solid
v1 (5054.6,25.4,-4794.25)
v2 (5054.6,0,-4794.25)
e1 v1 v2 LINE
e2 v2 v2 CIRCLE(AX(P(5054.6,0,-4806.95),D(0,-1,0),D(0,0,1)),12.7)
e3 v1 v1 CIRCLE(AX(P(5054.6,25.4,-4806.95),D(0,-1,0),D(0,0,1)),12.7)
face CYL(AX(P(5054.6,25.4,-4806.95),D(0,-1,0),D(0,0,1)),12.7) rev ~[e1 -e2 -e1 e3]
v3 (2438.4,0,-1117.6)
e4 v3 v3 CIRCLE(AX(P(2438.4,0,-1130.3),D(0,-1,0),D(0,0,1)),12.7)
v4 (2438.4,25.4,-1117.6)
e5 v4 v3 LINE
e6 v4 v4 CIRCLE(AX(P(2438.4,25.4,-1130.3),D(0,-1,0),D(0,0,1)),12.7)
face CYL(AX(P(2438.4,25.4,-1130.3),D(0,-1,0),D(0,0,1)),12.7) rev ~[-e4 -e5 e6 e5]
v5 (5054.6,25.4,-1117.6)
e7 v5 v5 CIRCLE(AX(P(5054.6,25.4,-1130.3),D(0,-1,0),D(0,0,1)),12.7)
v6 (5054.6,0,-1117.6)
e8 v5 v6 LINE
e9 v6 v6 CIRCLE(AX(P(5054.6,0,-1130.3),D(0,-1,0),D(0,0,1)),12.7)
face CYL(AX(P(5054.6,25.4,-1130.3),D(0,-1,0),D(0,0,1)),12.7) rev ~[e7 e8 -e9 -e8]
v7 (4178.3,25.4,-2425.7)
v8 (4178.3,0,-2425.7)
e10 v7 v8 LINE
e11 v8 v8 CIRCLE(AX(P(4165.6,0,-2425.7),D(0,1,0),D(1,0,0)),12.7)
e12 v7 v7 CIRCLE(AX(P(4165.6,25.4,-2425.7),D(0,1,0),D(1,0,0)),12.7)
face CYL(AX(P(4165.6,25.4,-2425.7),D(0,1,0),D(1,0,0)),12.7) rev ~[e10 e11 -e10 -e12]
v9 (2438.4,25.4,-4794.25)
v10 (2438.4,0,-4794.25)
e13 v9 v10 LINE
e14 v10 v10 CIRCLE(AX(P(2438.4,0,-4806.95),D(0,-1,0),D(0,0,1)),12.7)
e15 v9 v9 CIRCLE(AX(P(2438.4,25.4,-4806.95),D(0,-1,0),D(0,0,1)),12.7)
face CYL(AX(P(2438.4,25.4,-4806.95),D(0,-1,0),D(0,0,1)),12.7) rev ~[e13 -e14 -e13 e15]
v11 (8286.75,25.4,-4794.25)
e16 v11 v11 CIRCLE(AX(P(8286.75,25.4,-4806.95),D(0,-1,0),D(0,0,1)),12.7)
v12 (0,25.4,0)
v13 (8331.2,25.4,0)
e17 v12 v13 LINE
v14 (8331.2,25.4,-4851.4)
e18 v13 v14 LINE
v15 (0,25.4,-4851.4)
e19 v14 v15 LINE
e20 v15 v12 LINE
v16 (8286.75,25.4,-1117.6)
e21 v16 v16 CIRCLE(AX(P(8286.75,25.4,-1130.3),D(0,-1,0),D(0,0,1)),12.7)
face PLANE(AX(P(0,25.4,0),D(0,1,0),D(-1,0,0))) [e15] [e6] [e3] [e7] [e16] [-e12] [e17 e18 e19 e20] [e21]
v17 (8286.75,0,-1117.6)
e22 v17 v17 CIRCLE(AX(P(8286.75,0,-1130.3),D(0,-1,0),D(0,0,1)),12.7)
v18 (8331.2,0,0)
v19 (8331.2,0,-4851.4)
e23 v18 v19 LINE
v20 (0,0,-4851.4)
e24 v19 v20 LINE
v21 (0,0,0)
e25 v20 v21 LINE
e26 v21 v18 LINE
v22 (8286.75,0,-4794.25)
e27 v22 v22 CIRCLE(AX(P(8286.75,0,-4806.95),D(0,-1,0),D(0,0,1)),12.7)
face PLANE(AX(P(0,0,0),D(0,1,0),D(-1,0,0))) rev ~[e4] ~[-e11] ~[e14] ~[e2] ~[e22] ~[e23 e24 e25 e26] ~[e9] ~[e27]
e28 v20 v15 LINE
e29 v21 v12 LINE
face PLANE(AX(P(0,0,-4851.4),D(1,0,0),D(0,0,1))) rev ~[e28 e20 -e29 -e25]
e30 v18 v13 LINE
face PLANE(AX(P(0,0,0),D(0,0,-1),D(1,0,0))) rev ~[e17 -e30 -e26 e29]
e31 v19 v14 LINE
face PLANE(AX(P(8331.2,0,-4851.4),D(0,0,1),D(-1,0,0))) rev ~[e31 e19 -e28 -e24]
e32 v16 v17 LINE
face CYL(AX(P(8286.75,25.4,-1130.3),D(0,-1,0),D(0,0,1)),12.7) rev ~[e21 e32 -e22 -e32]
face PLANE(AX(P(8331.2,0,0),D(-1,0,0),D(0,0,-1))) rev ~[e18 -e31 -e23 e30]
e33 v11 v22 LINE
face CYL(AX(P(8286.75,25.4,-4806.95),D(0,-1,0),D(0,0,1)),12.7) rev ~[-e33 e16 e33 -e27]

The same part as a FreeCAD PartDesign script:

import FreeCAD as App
import Part
import Sketcher
Q = App.Units.Quantity


def add_polygon(sketch, points):
    """Adds a closed chain of lines whose ends are joined by coincident constraints."""
    first, n = sketch.GeometryCount, len(points)
    for a, b in zip(points, points[1:] + points[:1]):
        sketch.addGeometry(Part.LineSegment(App.Vector(*a, 0), App.Vector(*b, 0)), False)
    for i in range(n):
        sketch.addConstraint(Sketcher.Constraint("Coincident", first + i, 2, first + (i + 1) % n, 1))

doc = App.newDocument("Part")
params = doc.addObject("Spreadsheet::Sheet", "Params")
for row, (alias, value) in enumerate([
    ("sketch1_width", "328 in"),
    ("sketch1_height", "191 in"),
    ("pad1_length", "1 in"),
    ("sketch2_diameter", "1 in"),
    ("hole_diameter", "1 in"),
    ("hole_depth", "1 in"),
    ("sketch3_diameter", "1 in"),
    ("pocket1_length", "43 in"),
], start=1):
    params.set(f"A{row}", alias)
    params.set(f"B{row}", "=" + value)
    params.setAlias(f"B{row}", alias)

body = doc.addObject("PartDesign::Body", "Body")

# Sketch on XZ plane
sketch1 = body.newObject("Sketcher::SketchObject", "Sketch")
sketch1.AttachmentSupport = (doc.getObject("XZ_Plane"), [""])
sketch1.MapMode = "FlatFace"
add_polygon(sketch1, [(0, -4851), (0, 0), (8331, 0), (8331, -4851)])  # lines 0-3
sketch1.addConstraint(Sketcher.Constraint("Vertical", 0))
sketch1.addConstraint(Sketcher.Constraint("Horizontal", 1))
sketch1.addConstraint(Sketcher.Constraint("Vertical", 2))
sketch1.addConstraint(Sketcher.Constraint("Horizontal", 3))
sketch1.addConstraint(Sketcher.Constraint("Coincident", 0, 2, -1, 1))
sketch1.addConstraint(Sketcher.Constraint("DistanceX", 1, 1, 1, 2, Q("328 in")))
sketch1.addConstraint(Sketcher.Constraint("DistanceY", 0, 1, 0, 2, Q("191 in")))
sketch1.setExpression("Constraints[9]", "Params.sketch1_width")
sketch1.setExpression("Constraints[10]", "Params.sketch1_height")
pad1 = body.newObject("PartDesign::Pad", "Pad")
pad1.Profile = sketch1
pad1.setExpression("Length", "Params.pad1_length")
pad1.Reversed = True

# Sketch on XZ plane
sketch2 = body.newObject("Sketcher::SketchObject", "Sketch001")
sketch2.AttachmentSupport = (doc.getObject("XZ_Plane"), [""])
sketch2.MapMode = "FlatFace"
sketch2.AttachmentOffset = App.Placement(App.Vector(0, 0, -1 * 25.4), App.Rotation())
sketch2.addGeometry(Part.Circle(App.Vector(8287, -1130, 0), App.Vector(0, 0, 1), 13), False)
sketch2.addGeometry(Part.Circle(App.Vector(8287, -4807, 0), App.Vector(0, 0, 1), 13), False)
sketch2.addGeometry(Part.Circle(App.Vector(5055, -1130, 0), App.Vector(0, 0, 1), 13), False)
sketch2.addGeometry(Part.Circle(App.Vector(5055, -4807, 0), App.Vector(0, 0, 1), 13), False)
sketch2.addGeometry(Part.Circle(App.Vector(2438, -4807, 0), App.Vector(0, 0, 1), 13), False)
sketch2.addGeometry(Part.Circle(App.Vector(2438, -1130, 0), App.Vector(0, 0, 1), 13), False)
sketch2.addConstraint(Sketcher.Constraint("Equal", 0, 1))
sketch2.addConstraint(Sketcher.Constraint("Equal", 1, 2))
sketch2.addConstraint(Sketcher.Constraint("Equal", 2, 3))
sketch2.addConstraint(Sketcher.Constraint("Equal", 3, 4))
sketch2.addConstraint(Sketcher.Constraint("Equal", 4, 5))
sketch2.addConstraint(Sketcher.Constraint("Horizontal", 0, 3, 2, 3))
sketch2.addConstraint(Sketcher.Constraint("Horizontal", 1, 3, 3, 3))
sketch2.addConstraint(Sketcher.Constraint("Horizontal", 3, 3, 4, 3))
sketch2.addConstraint(Sketcher.Constraint("Horizontal", 2, 3, 5, 3))
sketch2.addConstraint(Sketcher.Constraint("Vertical", 0, 3, 1, 3))
sketch2.addConstraint(Sketcher.Constraint("Vertical", 2, 3, 3, 3))
sketch2.addConstraint(Sketcher.Constraint("Vertical", 4, 3, 5, 3))
sketch2.addConstraint(Sketcher.Constraint("Diameter", 0, Q("1 in")))
sketch2.addConstraint(Sketcher.Constraint("DistanceX", -1, 1, 2, 3, Q("199 in")))
sketch2.addConstraint(Sketcher.Constraint("DistanceX", -1, 1, 4, 3, Q("96 in")))
sketch2.addConstraint(Sketcher.Constraint("DistanceY", 0, 3, -1, 1, Q("44.5 in")))
sketch2.addConstraint(Sketcher.Constraint("DistanceX", -1, 1, 0, 3, Q("326.25 in")))
sketch2.addConstraint(Sketcher.Constraint("DistanceY", 1, 3, -1, 1, Q("189.25 in")))
sketch2.setExpression("Constraints[12]", "Params.sketch2_diameter")
doc.recompute()
hole = body.newObject("PartDesign::Hole", "Hole")
hole.Profile = sketch2
hole.ThreadType = "None"
hole.setExpression("Diameter", "Params.hole_diameter")
hole.DepthType = "Dimension"
hole.setExpression("Depth", "Params.hole_depth")
hole.DrillPoint = "Angled"
hole.DrillPointAngle = 118
hole.Reversed = True

# Sketch on XZ plane
sketch3 = body.newObject("Sketcher::SketchObject", "Sketch002")
sketch3.AttachmentSupport = (doc.getObject("XZ_Plane"), [""])
sketch3.MapMode = "FlatFace"
sketch3.AttachmentOffset = App.Placement(App.Vector(0, 0, -1 * 25.4), App.Rotation())
sketch3.addGeometry(Part.Circle(App.Vector(4166, -2426, 0), App.Vector(0, 0, 1), 13), False)
sketch3.addConstraint(Sketcher.Constraint("Diameter", 0, Q("1 in")))
sketch3.addConstraint(Sketcher.Constraint("DistanceX", -1, 1, 0, 3, Q("164 in")))
sketch3.addConstraint(Sketcher.Constraint("DistanceY", 0, 3, -1, 1, Q("95.5 in")))
sketch3.setExpression("Constraints[0]", "Params.sketch3_diameter")
pocket1 = body.newObject("PartDesign::Pocket", "Pocket")
pocket1.Profile = sketch3
pocket1.setExpression("Length", "Params.pocket1_length")
pocket1.Reversed = True

doc.recompute()
